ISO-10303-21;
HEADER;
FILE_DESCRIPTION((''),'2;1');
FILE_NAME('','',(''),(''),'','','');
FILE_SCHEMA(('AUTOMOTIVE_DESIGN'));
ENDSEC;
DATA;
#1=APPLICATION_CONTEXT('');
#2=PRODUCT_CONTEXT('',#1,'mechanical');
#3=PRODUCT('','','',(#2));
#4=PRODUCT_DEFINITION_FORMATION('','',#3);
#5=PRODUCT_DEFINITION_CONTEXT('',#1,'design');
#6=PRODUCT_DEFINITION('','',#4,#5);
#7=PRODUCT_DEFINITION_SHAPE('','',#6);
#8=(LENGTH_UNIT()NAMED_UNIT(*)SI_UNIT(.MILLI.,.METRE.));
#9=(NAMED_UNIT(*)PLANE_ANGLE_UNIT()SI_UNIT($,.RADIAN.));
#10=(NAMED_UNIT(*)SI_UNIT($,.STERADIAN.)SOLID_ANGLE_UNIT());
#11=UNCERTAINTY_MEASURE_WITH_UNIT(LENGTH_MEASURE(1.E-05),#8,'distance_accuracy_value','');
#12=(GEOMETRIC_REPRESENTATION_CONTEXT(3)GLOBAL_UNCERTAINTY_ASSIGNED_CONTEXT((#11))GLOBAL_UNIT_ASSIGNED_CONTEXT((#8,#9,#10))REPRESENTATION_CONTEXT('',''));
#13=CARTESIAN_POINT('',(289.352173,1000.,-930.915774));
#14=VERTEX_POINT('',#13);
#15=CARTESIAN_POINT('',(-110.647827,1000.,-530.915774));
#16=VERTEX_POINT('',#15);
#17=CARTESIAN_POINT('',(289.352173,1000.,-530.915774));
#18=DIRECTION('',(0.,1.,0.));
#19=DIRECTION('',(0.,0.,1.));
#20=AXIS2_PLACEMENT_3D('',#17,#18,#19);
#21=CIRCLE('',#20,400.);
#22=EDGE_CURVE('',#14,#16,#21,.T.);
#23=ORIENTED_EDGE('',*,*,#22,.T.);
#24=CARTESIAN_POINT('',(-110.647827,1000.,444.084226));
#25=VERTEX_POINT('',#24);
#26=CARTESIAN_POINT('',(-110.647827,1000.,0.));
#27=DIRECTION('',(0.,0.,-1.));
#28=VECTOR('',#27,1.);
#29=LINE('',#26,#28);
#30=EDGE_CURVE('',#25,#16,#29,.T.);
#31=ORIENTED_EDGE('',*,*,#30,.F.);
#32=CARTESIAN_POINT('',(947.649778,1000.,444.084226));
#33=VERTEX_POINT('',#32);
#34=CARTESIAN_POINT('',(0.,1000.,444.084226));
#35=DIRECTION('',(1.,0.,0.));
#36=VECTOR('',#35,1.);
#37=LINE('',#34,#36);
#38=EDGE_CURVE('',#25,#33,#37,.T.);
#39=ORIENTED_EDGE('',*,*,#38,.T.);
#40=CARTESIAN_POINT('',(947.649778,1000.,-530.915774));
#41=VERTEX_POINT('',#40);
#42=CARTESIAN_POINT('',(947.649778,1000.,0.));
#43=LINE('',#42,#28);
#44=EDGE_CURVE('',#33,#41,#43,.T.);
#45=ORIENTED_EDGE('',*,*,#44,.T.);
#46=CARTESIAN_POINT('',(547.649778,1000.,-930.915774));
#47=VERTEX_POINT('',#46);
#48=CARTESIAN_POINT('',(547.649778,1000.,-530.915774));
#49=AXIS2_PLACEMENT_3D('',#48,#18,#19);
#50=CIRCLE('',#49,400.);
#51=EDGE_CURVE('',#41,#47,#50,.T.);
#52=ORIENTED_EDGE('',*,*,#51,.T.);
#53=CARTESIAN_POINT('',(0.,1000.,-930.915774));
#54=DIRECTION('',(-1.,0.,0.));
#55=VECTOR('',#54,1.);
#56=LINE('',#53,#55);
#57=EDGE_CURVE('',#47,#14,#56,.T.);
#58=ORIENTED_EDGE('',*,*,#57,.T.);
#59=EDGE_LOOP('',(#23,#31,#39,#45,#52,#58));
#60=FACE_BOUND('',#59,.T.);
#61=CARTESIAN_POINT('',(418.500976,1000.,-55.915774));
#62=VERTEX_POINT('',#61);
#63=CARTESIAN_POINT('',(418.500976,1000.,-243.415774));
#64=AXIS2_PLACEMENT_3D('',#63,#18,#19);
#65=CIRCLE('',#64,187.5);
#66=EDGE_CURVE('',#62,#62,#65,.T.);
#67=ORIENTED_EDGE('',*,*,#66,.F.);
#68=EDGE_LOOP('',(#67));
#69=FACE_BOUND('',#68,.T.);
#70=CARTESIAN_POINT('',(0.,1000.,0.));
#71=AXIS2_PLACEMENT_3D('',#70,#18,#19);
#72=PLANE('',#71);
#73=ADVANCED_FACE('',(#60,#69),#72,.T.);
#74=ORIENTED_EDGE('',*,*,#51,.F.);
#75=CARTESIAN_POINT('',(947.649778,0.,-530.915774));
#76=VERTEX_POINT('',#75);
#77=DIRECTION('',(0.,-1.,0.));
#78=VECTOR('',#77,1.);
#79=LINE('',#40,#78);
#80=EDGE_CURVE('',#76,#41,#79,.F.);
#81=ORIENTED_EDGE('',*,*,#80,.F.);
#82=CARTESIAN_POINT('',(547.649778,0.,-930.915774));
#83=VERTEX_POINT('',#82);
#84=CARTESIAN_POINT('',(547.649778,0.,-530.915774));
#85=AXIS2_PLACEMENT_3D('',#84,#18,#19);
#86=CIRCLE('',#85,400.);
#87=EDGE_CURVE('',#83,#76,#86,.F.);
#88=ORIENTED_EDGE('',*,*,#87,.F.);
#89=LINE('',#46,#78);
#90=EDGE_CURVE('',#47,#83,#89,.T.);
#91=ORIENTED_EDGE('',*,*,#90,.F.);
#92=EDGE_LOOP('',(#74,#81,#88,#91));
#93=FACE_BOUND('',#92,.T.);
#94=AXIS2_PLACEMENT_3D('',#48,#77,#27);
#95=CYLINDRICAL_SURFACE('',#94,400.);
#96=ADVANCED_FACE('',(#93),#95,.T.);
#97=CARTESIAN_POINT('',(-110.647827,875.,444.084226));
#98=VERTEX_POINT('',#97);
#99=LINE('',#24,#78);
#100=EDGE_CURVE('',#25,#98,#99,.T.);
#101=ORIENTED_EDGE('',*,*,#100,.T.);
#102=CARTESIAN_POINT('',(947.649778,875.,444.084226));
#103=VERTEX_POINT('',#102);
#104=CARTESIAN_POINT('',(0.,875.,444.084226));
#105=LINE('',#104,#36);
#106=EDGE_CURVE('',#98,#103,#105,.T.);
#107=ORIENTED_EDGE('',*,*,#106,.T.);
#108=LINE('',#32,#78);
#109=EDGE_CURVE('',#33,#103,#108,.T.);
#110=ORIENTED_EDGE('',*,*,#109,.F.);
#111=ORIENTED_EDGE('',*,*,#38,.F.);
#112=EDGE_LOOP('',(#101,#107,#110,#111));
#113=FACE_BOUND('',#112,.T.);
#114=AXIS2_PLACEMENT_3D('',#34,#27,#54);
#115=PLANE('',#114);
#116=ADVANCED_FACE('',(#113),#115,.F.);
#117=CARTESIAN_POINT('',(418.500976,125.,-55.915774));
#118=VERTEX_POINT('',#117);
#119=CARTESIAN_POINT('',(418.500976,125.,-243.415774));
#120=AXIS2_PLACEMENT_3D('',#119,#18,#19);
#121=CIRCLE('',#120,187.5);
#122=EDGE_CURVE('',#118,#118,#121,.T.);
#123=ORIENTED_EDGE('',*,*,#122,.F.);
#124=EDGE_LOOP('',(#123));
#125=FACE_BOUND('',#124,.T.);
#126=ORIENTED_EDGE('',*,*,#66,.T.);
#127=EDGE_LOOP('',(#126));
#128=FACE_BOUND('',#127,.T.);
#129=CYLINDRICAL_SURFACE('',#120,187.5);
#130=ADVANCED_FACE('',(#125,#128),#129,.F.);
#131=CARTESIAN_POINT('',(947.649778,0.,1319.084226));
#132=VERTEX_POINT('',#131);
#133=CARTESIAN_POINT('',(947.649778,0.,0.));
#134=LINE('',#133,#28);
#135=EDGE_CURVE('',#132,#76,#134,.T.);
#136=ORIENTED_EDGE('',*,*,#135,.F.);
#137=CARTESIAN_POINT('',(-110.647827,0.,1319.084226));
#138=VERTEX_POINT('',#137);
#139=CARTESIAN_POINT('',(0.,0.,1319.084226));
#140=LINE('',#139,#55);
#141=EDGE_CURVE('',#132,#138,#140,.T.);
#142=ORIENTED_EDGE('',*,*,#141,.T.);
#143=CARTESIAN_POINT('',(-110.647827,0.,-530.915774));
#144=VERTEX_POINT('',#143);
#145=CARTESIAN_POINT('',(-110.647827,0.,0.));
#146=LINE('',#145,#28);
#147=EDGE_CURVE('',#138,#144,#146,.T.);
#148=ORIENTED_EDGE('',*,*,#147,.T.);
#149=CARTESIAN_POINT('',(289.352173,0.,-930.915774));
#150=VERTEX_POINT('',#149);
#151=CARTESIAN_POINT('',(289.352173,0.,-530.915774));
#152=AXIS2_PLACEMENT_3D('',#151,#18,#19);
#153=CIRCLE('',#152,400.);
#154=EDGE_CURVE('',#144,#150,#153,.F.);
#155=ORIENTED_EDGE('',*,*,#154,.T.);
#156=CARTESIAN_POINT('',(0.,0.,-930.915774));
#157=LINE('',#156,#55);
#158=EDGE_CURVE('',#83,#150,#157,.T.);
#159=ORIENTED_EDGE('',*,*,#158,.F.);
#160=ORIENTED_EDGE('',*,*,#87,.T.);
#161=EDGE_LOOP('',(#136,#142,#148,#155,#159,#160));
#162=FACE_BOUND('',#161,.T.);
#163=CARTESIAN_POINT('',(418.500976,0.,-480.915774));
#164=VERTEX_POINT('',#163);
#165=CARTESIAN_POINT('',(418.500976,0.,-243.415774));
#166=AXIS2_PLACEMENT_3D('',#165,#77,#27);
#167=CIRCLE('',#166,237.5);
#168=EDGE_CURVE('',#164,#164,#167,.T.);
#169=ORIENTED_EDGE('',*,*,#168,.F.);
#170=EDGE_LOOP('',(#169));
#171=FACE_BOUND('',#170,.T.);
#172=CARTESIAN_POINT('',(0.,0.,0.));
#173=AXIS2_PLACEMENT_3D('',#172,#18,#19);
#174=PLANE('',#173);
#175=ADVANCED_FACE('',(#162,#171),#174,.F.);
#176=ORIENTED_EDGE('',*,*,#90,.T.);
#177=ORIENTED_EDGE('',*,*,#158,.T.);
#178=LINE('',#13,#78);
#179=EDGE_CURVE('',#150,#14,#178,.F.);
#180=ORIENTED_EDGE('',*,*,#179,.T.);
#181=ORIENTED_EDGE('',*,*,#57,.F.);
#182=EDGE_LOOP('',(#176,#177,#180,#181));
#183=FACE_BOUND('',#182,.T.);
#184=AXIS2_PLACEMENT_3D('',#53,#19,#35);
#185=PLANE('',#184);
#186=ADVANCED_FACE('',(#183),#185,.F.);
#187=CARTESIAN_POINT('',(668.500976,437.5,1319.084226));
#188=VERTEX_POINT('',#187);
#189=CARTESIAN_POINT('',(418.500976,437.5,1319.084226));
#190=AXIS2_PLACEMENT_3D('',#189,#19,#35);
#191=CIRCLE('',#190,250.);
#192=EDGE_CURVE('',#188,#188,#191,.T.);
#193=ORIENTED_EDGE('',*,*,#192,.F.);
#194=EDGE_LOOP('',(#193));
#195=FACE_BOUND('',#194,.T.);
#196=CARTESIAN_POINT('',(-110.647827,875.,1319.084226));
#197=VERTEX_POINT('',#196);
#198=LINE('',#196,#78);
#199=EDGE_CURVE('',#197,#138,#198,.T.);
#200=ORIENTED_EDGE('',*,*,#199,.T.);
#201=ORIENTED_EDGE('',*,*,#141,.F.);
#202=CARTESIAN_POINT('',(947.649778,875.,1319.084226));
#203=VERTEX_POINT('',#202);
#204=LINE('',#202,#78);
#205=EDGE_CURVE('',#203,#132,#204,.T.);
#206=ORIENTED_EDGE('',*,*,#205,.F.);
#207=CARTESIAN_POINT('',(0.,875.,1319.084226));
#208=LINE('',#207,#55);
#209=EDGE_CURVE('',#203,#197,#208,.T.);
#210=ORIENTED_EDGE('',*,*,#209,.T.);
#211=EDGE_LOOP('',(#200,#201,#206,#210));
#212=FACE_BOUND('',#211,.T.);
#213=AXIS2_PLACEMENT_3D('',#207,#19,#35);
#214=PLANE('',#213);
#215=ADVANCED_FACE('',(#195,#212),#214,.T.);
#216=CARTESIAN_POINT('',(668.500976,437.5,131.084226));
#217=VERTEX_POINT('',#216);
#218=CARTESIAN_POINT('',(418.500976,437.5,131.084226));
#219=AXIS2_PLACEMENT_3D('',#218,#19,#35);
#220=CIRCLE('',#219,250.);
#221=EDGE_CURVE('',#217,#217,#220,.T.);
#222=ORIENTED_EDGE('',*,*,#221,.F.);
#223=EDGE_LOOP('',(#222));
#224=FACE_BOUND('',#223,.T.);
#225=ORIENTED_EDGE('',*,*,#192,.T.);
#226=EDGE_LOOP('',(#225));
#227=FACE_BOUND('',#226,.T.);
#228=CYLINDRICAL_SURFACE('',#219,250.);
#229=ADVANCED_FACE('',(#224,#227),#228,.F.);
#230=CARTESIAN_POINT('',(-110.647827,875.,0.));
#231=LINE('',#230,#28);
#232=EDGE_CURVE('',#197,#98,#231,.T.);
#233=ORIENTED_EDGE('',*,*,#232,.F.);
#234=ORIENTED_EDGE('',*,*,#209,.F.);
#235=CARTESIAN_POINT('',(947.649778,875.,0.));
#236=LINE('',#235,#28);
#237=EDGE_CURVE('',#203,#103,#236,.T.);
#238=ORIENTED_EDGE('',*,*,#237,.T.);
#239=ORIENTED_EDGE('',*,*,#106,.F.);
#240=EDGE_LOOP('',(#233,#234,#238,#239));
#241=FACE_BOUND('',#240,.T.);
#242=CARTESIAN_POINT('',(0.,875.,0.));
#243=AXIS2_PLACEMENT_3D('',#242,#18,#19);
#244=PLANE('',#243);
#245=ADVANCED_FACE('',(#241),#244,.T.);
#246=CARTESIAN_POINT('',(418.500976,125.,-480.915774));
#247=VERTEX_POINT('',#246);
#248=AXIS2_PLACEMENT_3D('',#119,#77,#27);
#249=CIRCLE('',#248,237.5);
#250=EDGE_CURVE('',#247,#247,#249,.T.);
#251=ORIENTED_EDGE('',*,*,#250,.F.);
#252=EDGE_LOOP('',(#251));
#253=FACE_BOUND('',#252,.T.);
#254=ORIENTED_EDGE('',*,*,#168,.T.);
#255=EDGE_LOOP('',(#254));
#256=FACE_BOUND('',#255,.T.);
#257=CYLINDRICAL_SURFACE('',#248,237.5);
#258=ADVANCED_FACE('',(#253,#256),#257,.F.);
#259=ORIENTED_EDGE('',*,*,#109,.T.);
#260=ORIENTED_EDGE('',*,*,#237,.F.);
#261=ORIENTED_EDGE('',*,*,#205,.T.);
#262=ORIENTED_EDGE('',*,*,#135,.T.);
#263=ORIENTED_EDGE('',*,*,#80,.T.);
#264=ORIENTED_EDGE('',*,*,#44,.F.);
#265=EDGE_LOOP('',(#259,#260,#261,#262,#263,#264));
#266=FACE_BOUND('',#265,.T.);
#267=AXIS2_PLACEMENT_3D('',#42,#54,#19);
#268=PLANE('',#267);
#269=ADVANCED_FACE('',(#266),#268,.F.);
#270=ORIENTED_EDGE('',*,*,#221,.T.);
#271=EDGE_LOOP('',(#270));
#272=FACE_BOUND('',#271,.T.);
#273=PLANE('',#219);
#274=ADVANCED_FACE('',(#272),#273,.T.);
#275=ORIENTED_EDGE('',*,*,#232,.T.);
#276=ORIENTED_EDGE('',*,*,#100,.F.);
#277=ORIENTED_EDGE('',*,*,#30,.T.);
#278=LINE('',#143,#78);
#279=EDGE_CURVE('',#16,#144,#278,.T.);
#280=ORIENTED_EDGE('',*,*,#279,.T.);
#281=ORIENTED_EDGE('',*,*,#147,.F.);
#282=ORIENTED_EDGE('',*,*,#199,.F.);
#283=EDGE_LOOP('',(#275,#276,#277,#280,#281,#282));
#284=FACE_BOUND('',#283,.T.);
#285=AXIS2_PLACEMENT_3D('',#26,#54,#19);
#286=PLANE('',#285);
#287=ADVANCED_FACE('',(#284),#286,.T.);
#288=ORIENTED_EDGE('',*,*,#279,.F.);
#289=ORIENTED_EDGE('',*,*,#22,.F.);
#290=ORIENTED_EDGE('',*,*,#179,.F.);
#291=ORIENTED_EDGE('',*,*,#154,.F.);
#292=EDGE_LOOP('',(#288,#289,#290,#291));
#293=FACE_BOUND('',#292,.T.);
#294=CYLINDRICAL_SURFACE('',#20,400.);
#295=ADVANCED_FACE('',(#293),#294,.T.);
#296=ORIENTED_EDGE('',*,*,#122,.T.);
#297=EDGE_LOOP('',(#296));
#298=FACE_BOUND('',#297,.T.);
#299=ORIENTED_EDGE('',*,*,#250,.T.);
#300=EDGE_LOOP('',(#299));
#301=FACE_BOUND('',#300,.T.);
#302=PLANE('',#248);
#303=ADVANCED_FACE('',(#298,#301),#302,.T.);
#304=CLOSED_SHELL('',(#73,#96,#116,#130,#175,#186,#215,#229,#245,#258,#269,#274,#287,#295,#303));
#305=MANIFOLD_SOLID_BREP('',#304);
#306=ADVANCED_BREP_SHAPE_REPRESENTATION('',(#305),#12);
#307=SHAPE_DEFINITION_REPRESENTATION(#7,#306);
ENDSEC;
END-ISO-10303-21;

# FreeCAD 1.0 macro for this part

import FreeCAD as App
import Part
import Sketcher

V = App.Vector
Q = App.Units.Quantity


def edges_at(feature, points):
    """Names of the edges that pass closest to the given points."""
    edges = feature.Shape.Edges
    near = lambda p: min(range(len(edges)), key=lambda i: edges[i].distToShape(Part.Vertex(*p))[0])
    return sorted({f"Edge{near(p) + 1}" for p in points})


def add_polygon(sketch, points):
    """Adds a closed chain of lines whose ends are joined by coincident constraints."""
    first, n = sketch.GeometryCount, len(points)
    for a, b in zip(points, points[1:] + points[:1]):
        sketch.addGeometry(Part.LineSegment(App.Vector(*a, 0), App.Vector(*b, 0)), False)
    for i in range(n):
        sketch.addConstraint(Sketcher.Constraint("Coincident", first + i, 2, first + (i + 1) % n, 1))

doc = App.newDocument("Part")
body = doc.addObject("PartDesign::Body", "Body")

sketch1 = doc.addObject("Sketcher::SketchObject", "Sketch")
body.addObject(sketch1)
sketch1.AttachmentSupport = (doc.XZ_Plane, [""])
sketch1.MapMode = "FlatFace"
add_polygon(sketch1, [(-110.647827, -930.915774), (-110.647827, 444.084226), (947.649778, 444.084226), (947.649778, -930.915774)])
sketch1.addConstraint([
    Sketcher.Constraint("Vertical", 0),
    Sketcher.Constraint("Horizontal", 1),
    Sketcher.Constraint("Vertical", 2),
    Sketcher.Constraint("Horizontal", 3),
    Sketcher.Constraint("DistanceY", 0, 1, 0, 2, Q("1375 mm")),
    Sketcher.Constraint("DistanceX", 1, 1, 1, 2, Q("1058.297605 mm")),
    Sketcher.Constraint("DistanceX", -1, 1, 1, 2, Q("947.649778 mm")),
    Sketcher.Constraint("DistanceY", -1, 1, 0, 2, Q("444.084226 mm")),
])
pad1 = doc.addObject("PartDesign::Pad", "Pad")
body.addObject(pad1)
pad1.Profile = sketch1
pad1.Length = 1000
pad1.Reversed = True

sketch2 = doc.addObject("Sketcher::SketchObject", "Sketch001")
body.addObject(sketch2)
sketch2.AttachmentSupport = (doc.XZ_Plane, [""])
sketch2.MapMode = "FlatFace"
add_polygon(sketch2, [(-110.647827, 444.084226), (-110.647827, 1319.084226), (947.649778, 1319.084226), (947.649778, 444.084226)])
sketch2.addConstraint([
    Sketcher.Constraint("Vertical", 0),
    Sketcher.Constraint("Horizontal", 1),
    Sketcher.Constraint("Vertical", 2),
    Sketcher.Constraint("Horizontal", 3),
    Sketcher.Constraint("DistanceY", 0, 1, 0, 2, Q("875 mm")),
    Sketcher.Constraint("DistanceX", 1, 1, 1, 2, Q("1058.297605 mm")),
    Sketcher.Constraint("DistanceX", -1, 1, 1, 2, Q("947.649778 mm")),
    Sketcher.Constraint("DistanceY", -1, 1, 0, 2, Q("1319.084226 mm")),
])
pad2 = doc.addObject("PartDesign::Pad", "Pad001")
body.addObject(pad2)
pad2.Profile = sketch2
pad2.Length = 875
pad2.Reversed = True

sketch3 = doc.addObject("Sketcher::SketchObject", "Sketch002")
body.addObject(sketch3)
sketch3.AttachmentSupport = (doc.XY_Plane, [""])
sketch3.MapMode = "FlatFace"
sketch3.AttachmentOffset = App.Placement(V(0, 0, 1319.084226), App.Rotation())
sketch3.addGeometry(Part.Circle(V(418.500976, 437.5, 0), V(0, 0, 1), 250), False)
sketch3.addConstraint([
    Sketcher.Constraint("Diameter", 0, Q("500 mm")),
    Sketcher.Constraint("DistanceY", -1, 1, 0, 3, Q("437.5 mm")),
    Sketcher.Constraint("DistanceX", -1, 1, 0, 3, Q("418.500976 mm")),
])
pocket1 = doc.addObject("PartDesign::Pocket", "Pocket")
body.addObject(pocket1)
pocket1.Profile = sketch3
pocket1.Length = 1188

sketch4 = doc.addObject("Sketcher::SketchObject", "Sketch003")
body.addObject(sketch4)
sketch4.AttachmentSupport = (doc.XZ_Plane, [""])
sketch4.MapMode = "FlatFace"
sketch4.AttachmentOffset = App.Placement(V(0, 0, -1000), App.Rotation())
sketch4.addGeometry(Part.Circle(V(418.500976, -243.415774, 0), V(0, 0, 1), 187.5), False)
sketch4.addConstraint([
    Sketcher.Constraint("Diameter", 0, Q("375 mm")),
    Sketcher.Constraint("DistanceX", -1, 1, 0, 3, Q("418.500976 mm")),
    Sketcher.Constraint("DistanceY", 0, 3, -1, 1, Q("243.415774 mm")),
])
pocket2 = doc.addObject("PartDesign::Pocket", "Pocket001")
body.addObject(pocket2)
pocket2.Profile = sketch4
pocket2.Length = 875
pocket2.Reversed = True

sketch5 = doc.addObject("Sketcher::SketchObject", "Sketch004")
body.addObject(sketch5)
sketch5.AttachmentSupport = (doc.XZ_Plane, [""])
sketch5.MapMode = "FlatFace"
sketch5.addGeometry(Part.Circle(V(418.500976, -243.415774, 0), V(0, 0, 1), 237.5), False)
sketch5.addConstraint([
    Sketcher.Constraint("Diameter", 0, Q("475 mm")),
    Sketcher.Constraint("DistanceX", -1, 1, 0, 3, Q("418.500976 mm")),
    Sketcher.Constraint("DistanceY", 0, 3, -1, 1, Q("243.415774 mm")),
])
pocket3 = doc.addObject("PartDesign::Pocket", "Pocket002")
body.addObject(pocket3)
pocket3.Profile = sketch5
pocket3.Length = 125
doc.recompute()

fillet = doc.addObject("PartDesign::Fillet", "Fillet")
body.addObject(fillet)
fillet.Base = (pocket3, edges_at(pocket3, [(-110.648, 500, -930.916), (947.65, 500, -930.916)]))
fillet.Radius = 400

doc.recompute()
